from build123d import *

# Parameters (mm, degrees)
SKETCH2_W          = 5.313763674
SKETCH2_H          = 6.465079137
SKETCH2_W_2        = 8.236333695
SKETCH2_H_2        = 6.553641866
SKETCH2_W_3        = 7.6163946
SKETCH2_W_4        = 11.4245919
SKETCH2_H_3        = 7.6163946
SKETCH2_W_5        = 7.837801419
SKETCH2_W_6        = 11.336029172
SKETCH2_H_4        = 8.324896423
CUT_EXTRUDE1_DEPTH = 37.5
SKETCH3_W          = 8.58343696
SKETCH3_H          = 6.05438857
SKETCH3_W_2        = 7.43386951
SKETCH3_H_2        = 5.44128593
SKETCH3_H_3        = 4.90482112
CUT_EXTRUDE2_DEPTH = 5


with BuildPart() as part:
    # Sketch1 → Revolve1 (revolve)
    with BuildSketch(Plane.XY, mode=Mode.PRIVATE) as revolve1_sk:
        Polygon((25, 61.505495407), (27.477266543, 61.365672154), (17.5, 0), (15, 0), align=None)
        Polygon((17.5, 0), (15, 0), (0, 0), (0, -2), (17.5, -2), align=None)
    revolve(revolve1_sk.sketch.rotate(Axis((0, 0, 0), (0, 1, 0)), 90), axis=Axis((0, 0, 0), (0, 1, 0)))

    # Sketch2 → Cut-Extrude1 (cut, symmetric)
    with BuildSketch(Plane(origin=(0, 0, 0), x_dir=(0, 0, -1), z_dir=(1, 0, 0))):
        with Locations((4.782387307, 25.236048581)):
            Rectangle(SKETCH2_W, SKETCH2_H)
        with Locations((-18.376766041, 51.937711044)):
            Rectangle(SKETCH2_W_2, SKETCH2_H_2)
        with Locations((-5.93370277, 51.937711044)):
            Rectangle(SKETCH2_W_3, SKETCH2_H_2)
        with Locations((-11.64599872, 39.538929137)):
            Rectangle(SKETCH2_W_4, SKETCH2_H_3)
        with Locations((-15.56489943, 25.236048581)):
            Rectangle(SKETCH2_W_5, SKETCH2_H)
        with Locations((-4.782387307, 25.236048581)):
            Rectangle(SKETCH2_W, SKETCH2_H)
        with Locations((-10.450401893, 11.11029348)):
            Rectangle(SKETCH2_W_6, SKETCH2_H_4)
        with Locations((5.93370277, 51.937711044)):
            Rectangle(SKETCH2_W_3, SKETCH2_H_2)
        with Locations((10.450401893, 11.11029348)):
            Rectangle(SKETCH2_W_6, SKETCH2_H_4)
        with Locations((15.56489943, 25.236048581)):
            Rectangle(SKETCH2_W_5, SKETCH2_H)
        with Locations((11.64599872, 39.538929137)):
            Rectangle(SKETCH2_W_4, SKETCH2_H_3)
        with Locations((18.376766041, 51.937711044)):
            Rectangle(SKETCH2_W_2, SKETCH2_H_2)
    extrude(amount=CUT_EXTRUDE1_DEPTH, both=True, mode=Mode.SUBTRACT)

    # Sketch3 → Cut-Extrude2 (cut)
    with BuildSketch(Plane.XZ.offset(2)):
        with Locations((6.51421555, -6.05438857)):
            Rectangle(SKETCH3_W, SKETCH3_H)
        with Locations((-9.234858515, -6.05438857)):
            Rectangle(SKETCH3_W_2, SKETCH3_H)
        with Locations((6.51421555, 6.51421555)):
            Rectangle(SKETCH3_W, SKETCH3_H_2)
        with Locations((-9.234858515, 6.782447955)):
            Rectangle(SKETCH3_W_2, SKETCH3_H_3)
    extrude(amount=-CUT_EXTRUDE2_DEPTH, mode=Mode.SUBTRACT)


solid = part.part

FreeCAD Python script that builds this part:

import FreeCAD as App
import Part
import Sketcher
from FreeCAD import Vector
Q = App.Units.Quantity

doc = App.newDocument("Part")
body = doc.addObject("PartDesign::Body", "Body")

# Sketch on XY plane
sketch1 = body.newObject("Sketcher::SketchObject", "Sketch")
sketch1.AttachmentSupport = (doc.getObject("XY_Plane"), [""])
sketch1.MapMode = "FlatFace"
sketch1.addGeometry([
    Part.LineSegment(Vector(27.5, 61.4, 0), Vector(25, 61.5, 0)),  # 0
    Part.LineSegment(Vector(25, 61.5, 0), Vector(15, 0, 0)),  # 1
    Part.LineSegment(Vector(15, 0, 0), Vector(0, 0, 0)),  # 2
    Part.LineSegment(Vector(0, 0, 0), Vector(0, -2, 0)),  # 3
    Part.LineSegment(Vector(0, -2, 0), Vector(17.5, -2, 0)),  # 4
    Part.LineSegment(Vector(17.5, -2, 0), Vector(17.5, 0, 0)),  # 5
    Part.LineSegment(Vector(17.5, 0, 0), Vector(27.5, 61.4, 0)),  # 6
], False)
sketch1.addConstraint([
    Sketcher.Constraint("Coincident", 0, 2, 1, 1),
    Sketcher.Constraint("Coincident", 1, 2, 2, 1),
    Sketcher.Constraint("Coincident", 2, 2, 3, 1),
    Sketcher.Constraint("Coincident", 3, 2, 4, 1),
    Sketcher.Constraint("Coincident", 4, 2, 5, 1),
    Sketcher.Constraint("Coincident", 5, 2, 6, 1),
    Sketcher.Constraint("Coincident", 6, 2, 0, 1),
    Sketcher.Constraint("Horizontal", 2),
    Sketcher.Constraint("Vertical", 3),
    Sketcher.Constraint("Horizontal", 4),
    Sketcher.Constraint("Vertical", 5),
    Sketcher.Constraint("Coincident", 2, 2, -1, 1),
    Sketcher.Constraint("PointOnObject", 5, 2, -1),
    Sketcher.Constraint("Parallel", 1, 6),
    Sketcher.Constraint("DistanceX", 2, 2, 2, 1, Q("15 mm")),
    Sketcher.Constraint("DistanceY", 3, 2, 3, 1, Q("2 mm")),
    Sketcher.Constraint("DistanceX", 4, 1, 4, 2, Q("17.5 mm")),
    Sketcher.Constraint("DistanceX", -1, 1, 0, 2, Q("25 mm")),
    Sketcher.Constraint("Distance", 0, Q("2.481209 mm")),
    Sketcher.Constraint("Distance", 1, Q("62.313128 mm")),
])
revolution = body.newObject("PartDesign::Revolution", "Revolution")
revolution.Profile = sketch1
revolution.ReferenceAxis = (sketch1, ["V_Axis"])
revolution.Angle = 360

# Sketch on YZ plane
sketch2 = body.newObject("Sketcher::SketchObject", "Sketch001")
sketch2.AttachmentSupport = (doc.getObject("YZ_Plane"), [""])
sketch2.MapMode = "FlatFace"
sketch2.addGeometry([
    Part.LineSegment(Vector(28, -2, 0), Vector(22, -2, 0)),  # 0
    Part.LineSegment(Vector(22, -2, 0), Vector(22, -7, 0)),  # 1
    Part.LineSegment(Vector(22, -7, 0), Vector(28, -7, 0)),  # 2
    Part.LineSegment(Vector(28, -7, 0), Vector(28, -2, 0)),  # 3
    Part.LineSegment(Vector(55, 22, 0), Vector(49, 22, 0)),  # 4
    Part.LineSegment(Vector(49, 22, 0), Vector(49, 14, 0)),  # 5
    Part.LineSegment(Vector(49, 14, 0), Vector(55, 14, 0)),  # 6
    Part.LineSegment(Vector(55, 14, 0), Vector(55, 22, 0)),  # 7
    Part.LineSegment(Vector(55, 10, 0), Vector(49, 10, 0)),  # 8
    Part.LineSegment(Vector(49, 10, 0), Vector(49, 2, 0)),  # 9
    Part.LineSegment(Vector(49, 2, 0), Vector(55, 2, 0)),  # 10
    Part.LineSegment(Vector(55, 2, 0), Vector(55, 10, 0)),  # 11
    Part.LineSegment(Vector(43, 17, 0), Vector(36, 17, 0)),  # 12
    Part.LineSegment(Vector(36, 17, 0), Vector(36, 6, 0)),  # 13
    Part.LineSegment(Vector(36, 6, 0), Vector(43, 6, 0)),  # 14
    Part.LineSegment(Vector(43, 6, 0), Vector(43, 17, 0)),  # 15
    Part.LineSegment(Vector(28, 19, 0), Vector(22, 19, 0)),  # 16
    Part.LineSegment(Vector(22, 19, 0), Vector(22, 12, 0)),  # 17
    Part.LineSegment(Vector(22, 12, 0), Vector(28, 12, 0)),  # 18
    Part.LineSegment(Vector(28, 12, 0), Vector(28, 19, 0)),  # 19
    Part.LineSegment(Vector(28, 7, 0), Vector(22, 7, 0)),  # 20
    Part.LineSegment(Vector(22, 7, 0), Vector(22, 2, 0)),  # 21
    Part.LineSegment(Vector(22, 2, 0), Vector(28, 2, 0)),  # 22
    Part.LineSegment(Vector(28, 2, 0), Vector(28, 7, 0)),  # 23
    Part.LineSegment(Vector(15, 16, 0), Vector(7, 16, 0)),  # 24
    Part.LineSegment(Vector(7, 16, 0), Vector(7, 5, 0)),  # 25
    Part.LineSegment(Vector(7, 5, 0), Vector(15, 5, 0)),  # 26
    Part.LineSegment(Vector(15, 5, 0), Vector(15, 16, 0)),  # 27
    Part.LineSegment(Vector(55, -2, 0), Vector(49, -2, 0)),  # 28
    Part.LineSegment(Vector(49, -2, 0), Vector(49, -10, 0)),  # 29
    Part.LineSegment(Vector(49, -10, 0), Vector(55, -10, 0)),  # 30
    Part.LineSegment(Vector(55, -10, 0), Vector(55, -2, 0)),  # 31
    Part.LineSegment(Vector(15, -5, 0), Vector(7, -5, 0)),  # 32
    Part.LineSegment(Vector(7, -5, 0), Vector(7, -16, 0)),  # 33
    Part.LineSegment(Vector(7, -16, 0), Vector(15, -16, 0)),  # 34
    Part.LineSegment(Vector(15, -16, 0), Vector(15, -5, 0)),  # 35
    Part.LineSegment(Vector(28, -12, 0), Vector(22, -12, 0)),  # 36
    Part.LineSegment(Vector(22, -12, 0), Vector(22, -19, 0)),  # 37
    Part.LineSegment(Vector(22, -19, 0), Vector(28, -19, 0)),  # 38
    Part.LineSegment(Vector(28, -19, 0), Vector(28, -12, 0)),  # 39
    Part.LineSegment(Vector(43, -6, 0), Vector(36, -6, 0)),  # 40
    Part.LineSegment(Vector(36, -6, 0), Vector(36, -17, 0)),  # 41
    Part.LineSegment(Vector(36, -17, 0), Vector(43, -17, 0)),  # 42
    Part.LineSegment(Vector(43, -17, 0), Vector(43, -6, 0)),  # 43
    Part.LineSegment(Vector(55, -14, 0), Vector(49, -14, 0)),  # 44
    Part.LineSegment(Vector(49, -14, 0), Vector(49, -22, 0)),  # 45
    Part.LineSegment(Vector(49, -22, 0), Vector(55, -22, 0)),  # 46
    Part.LineSegment(Vector(55, -22, 0), Vector(55, -14, 0)),  # 47
], False)
sketch2.addConstraint([
    Sketcher.Constraint("Coincident", 0, 2, 1, 1),
    Sketcher.Constraint("Coincident", 1, 2, 2, 1),
    Sketcher.Constraint("Coincident", 2, 2, 3, 1),
    Sketcher.Constraint("Coincident", 3, 2, 0, 1),
    Sketcher.Constraint("Coincident", 4, 2, 5, 1),
    Sketcher.Constraint("Coincident", 5, 2, 6, 1),
    Sketcher.Constraint("Coincident", 6, 2, 7, 1),
    Sketcher.Constraint("Coincident", 7, 2, 4, 1),
    Sketcher.Constraint("Coincident", 8, 2, 9, 1),
    Sketcher.Constraint("Coincident", 9, 2, 10, 1),
    Sketcher.Constraint("Coincident", 10, 2, 11, 1),
    Sketcher.Constraint("Coincident", 11, 2, 8, 1),
    Sketcher.Constraint("Coincident", 12, 2, 13, 1),
    Sketcher.Constraint("Coincident", 13, 2, 14, 1),
    Sketcher.Constraint("Coincident", 14, 2, 15, 1),
    Sketcher.Constraint("Coincident", 15, 2, 12, 1),
    Sketcher.Constraint("Coincident", 16, 2, 17, 1),
    Sketcher.Constraint("Coincident", 17, 2, 18, 1),
    Sketcher.Constraint("Coincident", 18, 2, 19, 1),
    Sketcher.Constraint("Coincident", 19, 2, 16, 1),
    Sketcher.Constraint("Coincident", 20, 2, 21, 1),
    Sketcher.Constraint("Coincident", 21, 2, 22, 1),
    Sketcher.Constraint("Coincident", 22, 2, 23, 1),
    Sketcher.Constraint("Coincident", 23, 2, 20, 1),
    Sketcher.Constraint("Coincident", 24, 2, 25, 1),
    Sketcher.Constraint("Coincident", 25, 2, 26, 1),
    Sketcher.Constraint("Coincident", 26, 2, 27, 1),
    Sketcher.Constraint("Coincident", 27, 2, 24, 1),
    Sketcher.Constraint("Coincident", 28, 2, 29, 1),
    Sketcher.Constraint("Coincident", 29, 2, 30, 1),
    Sketcher.Constraint("Coincident", 30, 2, 31, 1),
    Sketcher.Constraint("Coincident", 31, 2, 28, 1),
    Sketcher.Constraint("Coincident", 32, 2, 33, 1),
    Sketcher.Constraint("Coincident", 33, 2, 34, 1),
    Sketcher.Constraint("Coincident", 34, 2, 35, 1),
    Sketcher.Constraint("Coincident", 35, 2, 32, 1),
    Sketcher.Constraint("Coincident", 36, 2, 37, 1),
    Sketcher.Constraint("Coincident", 37, 2, 38, 1),
    Sketcher.Constraint("Coincident", 38, 2, 39, 1),
    Sketcher.Constraint("Coincident", 39, 2, 36, 1),
    Sketcher.Constraint("Coincident", 40, 2, 41, 1),
    Sketcher.Constraint("Coincident", 41, 2, 42, 1),
    Sketcher.Constraint("Coincident", 42, 2, 43, 1),
    Sketcher.Constraint("Coincident", 43, 2, 40, 1),
    Sketcher.Constraint("Coincident", 44, 2, 45, 1),
    Sketcher.Constraint("Coincident", 45, 2, 46, 1),
    Sketcher.Constraint("Coincident", 46, 2, 47, 1),
    Sketcher.Constraint("Coincident", 47, 2, 44, 1),
    Sketcher.Constraint("Horizontal", 0),
    Sketcher.Constraint("Vertical", 1),
    Sketcher.Constraint("Horizontal", 2),
    Sketcher.Constraint("Vertical", 3),
    Sketcher.Constraint("Horizontal", 4),
    Sketcher.Constraint("Vertical", 5),
    Sketcher.Constraint("Horizontal", 6),
    Sketcher.Constraint("Vertical", 7),
    Sketcher.Constraint("Horizontal", 8),
    Sketcher.Constraint("Vertical", 9),
    Sketcher.Constraint("Horizontal", 10),
    Sketcher.Constraint("Vertical", 11),
    Sketcher.Constraint("Horizontal", 12),
    Sketcher.Constraint("Vertical", 13),
    Sketcher.Constraint("Horizontal", 14),
    Sketcher.Constraint("Vertical", 15),
    Sketcher.Constraint("Horizontal", 16),
    Sketcher.Constraint("Vertical", 17),
    Sketcher.Constraint("Horizontal", 18),
    Sketcher.Constraint("Vertical", 19),
    Sketcher.Constraint("Horizontal", 20),
    Sketcher.Constraint("Vertical", 21),
    Sketcher.Constraint("Horizontal", 22),
    Sketcher.Constraint("Vertical", 23),
    Sketcher.Constraint("Horizontal", 24),
    Sketcher.Constraint("Vertical", 25),
    Sketcher.Constraint("Horizontal", 26),
    Sketcher.Constraint("Vertical", 27),
    Sketcher.Constraint("Horizontal", 28),
    Sketcher.Constraint("Vertical", 29),
    Sketcher.Constraint("Horizontal", 30),
    Sketcher.Constraint("Vertical", 31),
    Sketcher.Constraint("Horizontal", 32),
    Sketcher.Constraint("Vertical", 33),
    Sketcher.Constraint("Horizontal", 34),
    Sketcher.Constraint("Vertical", 35),
    Sketcher.Constraint("Horizontal", 36),
    Sketcher.Constraint("Vertical", 37),
    Sketcher.Constraint("Horizontal", 38),
    Sketcher.Constraint("Vertical", 39),
    Sketcher.Constraint("Horizontal", 40),
    Sketcher.Constraint("Vertical", 41),
    Sketcher.Constraint("Horizontal", 42),
    Sketcher.Constraint("Vertical", 43),
    Sketcher.Constraint("Horizontal", 44),
    Sketcher.Constraint("Vertical", 45),
    Sketcher.Constraint("Horizontal", 46),
    Sketcher.Constraint("Vertical", 47),
    Sketcher.Constraint("Symmetric", 1, 2, 20, 2, -1),
    Sketcher.Constraint("Symmetric", 3, 2, 22, 2, -1),
    Sketcher.Constraint("Symmetric", 9, 2, 28, 2, -1),
    Sketcher.Constraint("Symmetric", 11, 2, 30, 2, -1),
    Sketcher.Constraint("Symmetric", 25, 2, 32, 2, -1),
    Sketcher.Constraint("Symmetric", 27, 2, 34, 2, -1),
    Sketcher.Constraint("Symmetric", 17, 2, 36, 2, -1),
    Sketcher.Constraint("Symmetric", 19, 2, 38, 2, -1),
    Sketcher.Constraint("Symmetric", 13, 2, 40, 2, -1),
    Sketcher.Constraint("Symmetric", 15, 2, 42, 2, -1),
    Sketcher.Constraint("Symmetric", 5, 2, 44, 2, -1),
    Sketcher.Constraint("Symmetric", 7, 2, 46, 2, -1),
    Sketcher.Constraint("Horizontal", 10, 2, 21, 2),
    Sketcher.Constraint("Vertical", 5, 2, 8, 2),
    Sketcher.Constraint("Vertical", 7, 2, 10, 2),
    Sketcher.Constraint("Vertical", 1, 2, 16, 2),
    Sketcher.Constraint("Vertical", 3, 2, 18, 2),
    Sketcher.Constraint("Equal", 42, 9),
    Sketcher.Constraint("DistanceY", 17, 2, 17, 1, Q("7.837801 mm")),
    Sketcher.Constraint("DistanceY", -1, 1, 17, 2, Q("11.645999 mm")),
    Sketcher.Constraint("DistanceX", 0, 2, 0, 1, Q("6.465079 mm")),
    Sketcher.Constraint("DistanceX", 4, 2, 4, 1, Q("6.553642 mm")),
    Sketcher.Constraint("DistanceY", 13, 2, 13, 1, Q("11.424592 mm")),
    Sketcher.Constraint("DistanceY", 25, 2, 25, 1, Q("11.336029 mm")),
    Sketcher.Constraint("DistanceY", -1, 1, 5, 2, Q("14.258599 mm")),
    Sketcher.Constraint("DistanceY", -1, 1, 8, 2, Q("9.7419 mm")),
    Sketcher.Constraint("DistanceX", 3, 2, 4, 2, Q("20.192302 mm")),
    Sketcher.Constraint("DistanceX", 12, 2, 6, 2, Q("19.4838 mm")),
    Sketcher.Constraint("DistanceX", 12, 2, 12, 1, Q("7.616395 mm")),
    Sketcher.Constraint("DistanceX", 24, 2, 24, 1, Q("8.324896 mm")),
    Sketcher.Constraint("DistanceY", 1, 2, 1, 1, Q("5.313764 mm")),
    Sketcher.Constraint("DistanceY", 5, 2, 5, 1, Q("8.236334 mm")),
    Sketcher.Constraint("DistanceX", -1, 1, 0, 2, Q("22.003509 mm")),
    Sketcher.Constraint("DistanceX", -1, 1, 26, 2, Q("15.272742 mm")),
    Sketcher.Constraint("DistanceY", 12, 2, 4, 2, Q("5.136638 mm")),
    Sketcher.Constraint("DistanceY", 21, 2, 24, 2, Q("13.992911 mm")),
])
pocket1 = body.newObject("PartDesign::Pocket", "Pocket")
pocket1.Profile = sketch2
pocket1.Length = 75
pocket1.Midplane = True

# Sketch on XZ plane
sketch3 = body.newObject("Sketcher::SketchObject", "Sketch002")
sketch3.AttachmentSupport = (doc.getObject("XZ_Plane"), [""])
sketch3.MapMode = "FlatFace"
sketch3.AttachmentOffset = App.Placement(Vector(0, 0, 2), App.Rotation())
sketch3.addGeometry([
    Part.LineSegment(Vector(2.2, -3, 0), Vector(2.2, -9.1, 0)),  # 0
    Part.LineSegment(Vector(2.2, -9.1, 0), Vector(10.8, -9.1, 0)),  # 1
    Part.LineSegment(Vector(10.8, -9.1, 0), Vector(10.8, -3, 0)),  # 2
    Part.LineSegment(Vector(10.8, -3, 0), Vector(2.2, -3, 0)),  # 3
    Part.LineSegment(Vector(-13, -3, 0), Vector(-13, -9.1, 0)),  # 4
    Part.LineSegment(Vector(-13, -9.1, 0), Vector(-5.5, -9.1, 0)),  # 5
    Part.LineSegment(Vector(-5.5, -9.1, 0), Vector(-5.5, -3, 0)),  # 6
    Part.LineSegment(Vector(-5.5, -3, 0), Vector(-13, -3, 0)),  # 7
    Part.LineSegment(Vector(2.2, 9.2, 0), Vector(2.2, 3.8, 0)),  # 8
    Part.LineSegment(Vector(2.2, 3.8, 0), Vector(10.8, 3.8, 0)),  # 9
    Part.LineSegment(Vector(10.8, 3.8, 0), Vector(10.8, 9.2, 0)),  # 10
    Part.LineSegment(Vector(10.8, 9.2, 0), Vector(2.2, 9.2, 0)),  # 11
    Part.LineSegment(Vector(-13, 9.2, 0), Vector(-13, 4.3, 0)),  # 12
    Part.LineSegment(Vector(-13, 4.3, 0), Vector(-5.5, 4.3, 0)),  # 13
    Part.LineSegment(Vector(-5.5, 4.3, 0), Vector(-5.5, 9.2, 0)),  # 14
    Part.LineSegment(Vector(-5.5, 9.2, 0), Vector(-13, 9.2, 0)),  # 15
], False)
sketch3.addConstraint([
    Sketcher.Constraint("Coincident", 0, 2, 1, 1),
    Sketcher.Constraint("Coincident", 1, 2, 2, 1),
    Sketcher.Constraint("Coincident", 2, 2, 3, 1),
    Sketcher.Constraint("Coincident", 3, 2, 0, 1),
    Sketcher.Constraint("Coincident", 4, 2, 5, 1),
    Sketcher.Constraint("Coincident", 5, 2, 6, 1),
    Sketcher.Constraint("Coincident", 6, 2, 7, 1),
    Sketcher.Constraint("Coincident", 7, 2, 4, 1),
    Sketcher.Constraint("Coincident", 8, 2, 9, 1),
    Sketcher.Constraint("Coincident", 9, 2, 10, 1),
    Sketcher.Constraint("Coincident", 10, 2, 11, 1),
    Sketcher.Constraint("Coincident", 11, 2, 8, 1),
    Sketcher.Constraint("Coincident", 12, 2, 13, 1),
    Sketcher.Constraint("Coincident", 13, 2, 14, 1),
    Sketcher.Constraint("Coincident", 14, 2, 15, 1),
    Sketcher.Constraint("Coincident", 15, 2, 12, 1),
    Sketcher.Constraint("Vertical", 0),
    Sketcher.Constraint("Horizontal", 1),
    Sketcher.Constraint("Vertical", 2),
    Sketcher.Constraint("Horizontal", 3),
    Sketcher.Constraint("Vertical", 4),
    Sketcher.Constraint("Horizontal", 5),
    Sketcher.Constraint("Vertical", 6),
    Sketcher.Constraint("Horizontal", 7),
    Sketcher.Constraint("Vertical", 8),
    Sketcher.Constraint("Horizontal", 9),
    Sketcher.Constraint("Vertical", 10),
    Sketcher.Constraint("Horizontal", 11),
    Sketcher.Constraint("Vertical", 12),
    Sketcher.Constraint("Horizontal", 13),
    Sketcher.Constraint("Vertical", 14),
    Sketcher.Constraint("Horizontal", 15),
    Sketcher.Constraint("Horizontal", 1, 2, 4, 2),
    Sketcher.Constraint("Horizontal", 3, 2, 6, 2),
    Sketcher.Constraint("Horizontal", 11, 2, 14, 2),
    Sketcher.Constraint("Vertical", 3, 2, 8, 2),
    Sketcher.Constraint("Vertical", 2, 2, 9, 2),
    Sketcher.Constraint("Vertical", 7, 2, 12, 2),
    Sketcher.Constraint("Vertical", 6, 2, 13, 2),
    Sketcher.Constraint("DistanceX", 5, 1, 5, 2, Q("7.43387 mm")),
    Sketcher.Constraint("DistanceY", 0, 2, 0, 1, Q("6.054389 mm")),
    Sketcher.Constraint("DistanceY", 12, 2, 12, 1, Q("4.904821 mm")),
    Sketcher.Constraint("DistanceX", 1, 1, 1, 2, Q("8.583437 mm")),
    Sketcher.Constraint("DistanceY", 8, 2, 8, 1, Q("5.441286 mm")),
    Sketcher.Constraint("DistanceY", -1, 1, 10, 2, Q("9.234859 mm")),
    Sketcher.Constraint("DistanceX", 4, 2, 0, 2, Q("15.17429 mm")),
    Sketcher.Constraint("DistanceY", 1, 2, 10, 2, Q("18.316441 mm")),
    Sketcher.Constraint("DistanceX", -1, 1, 0, 2, Q("2.222497 mm")),
])
pocket2 = body.newObject("PartDesign::Pocket", "Pocket001")
pocket2.Profile = sketch3
pocket2.Length = 5

doc.recompute()
